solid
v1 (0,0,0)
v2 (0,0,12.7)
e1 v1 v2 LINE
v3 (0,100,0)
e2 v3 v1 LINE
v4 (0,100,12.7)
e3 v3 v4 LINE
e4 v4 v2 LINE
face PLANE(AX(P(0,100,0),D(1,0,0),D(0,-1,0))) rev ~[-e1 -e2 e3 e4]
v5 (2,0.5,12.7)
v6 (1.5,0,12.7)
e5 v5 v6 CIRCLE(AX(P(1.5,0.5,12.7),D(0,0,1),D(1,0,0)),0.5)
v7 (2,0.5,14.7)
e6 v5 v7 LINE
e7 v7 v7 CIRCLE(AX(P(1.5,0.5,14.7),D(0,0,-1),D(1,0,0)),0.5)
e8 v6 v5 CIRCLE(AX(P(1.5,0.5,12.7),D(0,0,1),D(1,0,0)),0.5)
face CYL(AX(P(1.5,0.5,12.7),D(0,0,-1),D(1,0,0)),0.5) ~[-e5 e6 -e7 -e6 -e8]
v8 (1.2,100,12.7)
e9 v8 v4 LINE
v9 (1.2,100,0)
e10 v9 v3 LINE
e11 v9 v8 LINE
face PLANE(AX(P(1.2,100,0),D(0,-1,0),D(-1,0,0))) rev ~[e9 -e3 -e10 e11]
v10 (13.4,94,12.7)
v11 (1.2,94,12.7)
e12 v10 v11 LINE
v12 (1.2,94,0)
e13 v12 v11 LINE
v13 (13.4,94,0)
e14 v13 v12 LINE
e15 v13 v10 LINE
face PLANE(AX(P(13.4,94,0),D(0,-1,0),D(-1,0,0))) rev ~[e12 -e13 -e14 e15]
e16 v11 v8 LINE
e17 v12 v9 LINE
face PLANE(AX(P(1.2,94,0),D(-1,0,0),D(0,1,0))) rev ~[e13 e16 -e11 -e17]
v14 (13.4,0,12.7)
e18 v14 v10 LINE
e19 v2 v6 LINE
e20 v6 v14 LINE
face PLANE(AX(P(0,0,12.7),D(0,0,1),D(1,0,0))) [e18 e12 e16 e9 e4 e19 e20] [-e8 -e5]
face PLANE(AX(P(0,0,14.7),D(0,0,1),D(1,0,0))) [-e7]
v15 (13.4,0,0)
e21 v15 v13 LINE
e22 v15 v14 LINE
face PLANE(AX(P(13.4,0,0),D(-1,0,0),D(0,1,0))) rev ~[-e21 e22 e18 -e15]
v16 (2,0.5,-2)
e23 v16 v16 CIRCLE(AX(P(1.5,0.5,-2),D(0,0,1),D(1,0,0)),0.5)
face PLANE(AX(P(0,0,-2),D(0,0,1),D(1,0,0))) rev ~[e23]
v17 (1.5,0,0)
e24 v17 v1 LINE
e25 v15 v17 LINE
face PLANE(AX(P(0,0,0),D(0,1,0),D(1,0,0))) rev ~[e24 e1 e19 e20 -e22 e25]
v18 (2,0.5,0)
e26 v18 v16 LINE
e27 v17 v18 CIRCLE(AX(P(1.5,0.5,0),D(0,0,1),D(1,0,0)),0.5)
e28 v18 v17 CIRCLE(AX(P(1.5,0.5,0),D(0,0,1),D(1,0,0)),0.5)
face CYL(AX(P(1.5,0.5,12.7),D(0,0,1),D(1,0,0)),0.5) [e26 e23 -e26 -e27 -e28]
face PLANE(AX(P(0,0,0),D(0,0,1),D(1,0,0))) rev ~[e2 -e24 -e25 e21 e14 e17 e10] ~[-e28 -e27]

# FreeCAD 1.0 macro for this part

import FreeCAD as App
import Part
import Sketcher
from FreeCAD import Vector
Q = App.Units.Quantity

doc = App.newDocument("Part")
params = doc.addObject("Spreadsheet::Sheet", "Params")
for row, (alias, value) in enumerate([
    ("sketch1_height", "100 mm"),
    ("sketch1_height2", "94 mm"),
    ("sketch1_width", "1.2 mm"),
    ("sketch1_width2", "12.2 mm"),
    ("pad1_length", "12.7 mm"),
    ("sketch2_diameter", "1 mm"),
    ("pad2_length", "2 mm"),
    ("pad2_length2", "14.7 mm"),
], start=1):
    params.set(f"A{row}", alias)
    params.set(f"B{row}", "=" + value)
    params.setAlias(f"B{row}", alias)

body = doc.addObject("PartDesign::Body", "Body")

# Sketch on XY plane
sketch1 = body.newObject("Sketcher::SketchObject", "Sketch")
sketch1.AttachmentSupport = (doc.getObject("XY_Plane"), [""])
sketch1.MapMode = "FlatFace"
sketch1.addGeometry([
    Part.LineSegment(Vector(1.2, 94, 0), Vector(1.2, 100, 0)),  # 0
    Part.LineSegment(Vector(1.2, 100, 0), Vector(0, 100, 0)),  # 1
    Part.LineSegment(Vector(0, 100, 0), Vector(0, 0, 0)),  # 2
    Part.LineSegment(Vector(0, 0, 0), Vector(13.4, 0, 0)),  # 3
    Part.LineSegment(Vector(13.4, 0, 0), Vector(13.4, 94, 0)),  # 4
    Part.LineSegment(Vector(13.4, 94, 0), Vector(1.2, 94, 0)),  # 5
], False)
sketch1.addConstraint([
    Sketcher.Constraint("Coincident", 0, 2, 1, 1),
    Sketcher.Constraint("Coincident", 1, 2, 2, 1),
    Sketcher.Constraint("Coincident", 2, 2, 3, 1),
    Sketcher.Constraint("Coincident", 3, 2, 4, 1),
    Sketcher.Constraint("Coincident", 4, 2, 5, 1),
    Sketcher.Constraint("Coincident", 5, 2, 0, 1),
    Sketcher.Constraint("Vertical", 0),
    Sketcher.Constraint("Horizontal", 1),
    Sketcher.Constraint("Vertical", 2),
    Sketcher.Constraint("Horizontal", 3),
    Sketcher.Constraint("Vertical", 4),
    Sketcher.Constraint("Horizontal", 5),
    Sketcher.Constraint("Coincident", 2, 2, -1, 1),
    Sketcher.Constraint("DistanceY", 2, 2, 2, 1, Q("100 mm")),
    Sketcher.Constraint("DistanceY", 4, 1, 4, 2, Q("94 mm")),
    Sketcher.Constraint("DistanceX", 1, 2, 1, 1, Q("1.2 mm")),
    Sketcher.Constraint("DistanceX", 5, 2, 5, 1, Q("12.2 mm")),
])
sketch1.setExpression("Constraints[13]", "Params.sketch1_height")
sketch1.setExpression("Constraints[14]", "Params.sketch1_height2")
sketch1.setExpression("Constraints[15]", "Params.sketch1_width")
sketch1.setExpression("Constraints[16]", "Params.sketch1_width2")
pad1 = body.newObject("PartDesign::Pad", "Pad")
pad1.Profile = sketch1
pad1.setExpression("Length", "Params.pad1_length")

# Sketch on XY plane
sketch2 = body.newObject("Sketcher::SketchObject", "Sketch001")
sketch2.AttachmentSupport = (doc.getObject("XY_Plane"), [""])
sketch2.MapMode = "FlatFace"
sketch2.AttachmentOffset = App.Placement(Vector(0, 0, 12.7), App.Rotation())
sketch2.addGeometry(Part.Circle(Vector(1.5, 0.5, 0), Vector(0, 0, 1), 0.5), False)
sketch2.addConstraint([
    Sketcher.Constraint("Diameter", 0, Q("1 mm")),
    Sketcher.Constraint("DistanceX", -1, 1, 0, 3, Q("1.5 mm")),
    Sketcher.Constraint("DistanceY", -1, 1, 0, 3, Q("0.5 mm")),
])
sketch2.setExpression("Constraints[0]", "Params.sketch2_diameter")
pad2 = body.newObject("PartDesign::Pad", "Pad001")
pad2.Profile = sketch2
pad2.Type = "TwoLengths"
pad2.setExpression("Length", "Params.pad2_length")
pad2.setExpression("Length2", "Params.pad2_length2")

doc.recompute()
